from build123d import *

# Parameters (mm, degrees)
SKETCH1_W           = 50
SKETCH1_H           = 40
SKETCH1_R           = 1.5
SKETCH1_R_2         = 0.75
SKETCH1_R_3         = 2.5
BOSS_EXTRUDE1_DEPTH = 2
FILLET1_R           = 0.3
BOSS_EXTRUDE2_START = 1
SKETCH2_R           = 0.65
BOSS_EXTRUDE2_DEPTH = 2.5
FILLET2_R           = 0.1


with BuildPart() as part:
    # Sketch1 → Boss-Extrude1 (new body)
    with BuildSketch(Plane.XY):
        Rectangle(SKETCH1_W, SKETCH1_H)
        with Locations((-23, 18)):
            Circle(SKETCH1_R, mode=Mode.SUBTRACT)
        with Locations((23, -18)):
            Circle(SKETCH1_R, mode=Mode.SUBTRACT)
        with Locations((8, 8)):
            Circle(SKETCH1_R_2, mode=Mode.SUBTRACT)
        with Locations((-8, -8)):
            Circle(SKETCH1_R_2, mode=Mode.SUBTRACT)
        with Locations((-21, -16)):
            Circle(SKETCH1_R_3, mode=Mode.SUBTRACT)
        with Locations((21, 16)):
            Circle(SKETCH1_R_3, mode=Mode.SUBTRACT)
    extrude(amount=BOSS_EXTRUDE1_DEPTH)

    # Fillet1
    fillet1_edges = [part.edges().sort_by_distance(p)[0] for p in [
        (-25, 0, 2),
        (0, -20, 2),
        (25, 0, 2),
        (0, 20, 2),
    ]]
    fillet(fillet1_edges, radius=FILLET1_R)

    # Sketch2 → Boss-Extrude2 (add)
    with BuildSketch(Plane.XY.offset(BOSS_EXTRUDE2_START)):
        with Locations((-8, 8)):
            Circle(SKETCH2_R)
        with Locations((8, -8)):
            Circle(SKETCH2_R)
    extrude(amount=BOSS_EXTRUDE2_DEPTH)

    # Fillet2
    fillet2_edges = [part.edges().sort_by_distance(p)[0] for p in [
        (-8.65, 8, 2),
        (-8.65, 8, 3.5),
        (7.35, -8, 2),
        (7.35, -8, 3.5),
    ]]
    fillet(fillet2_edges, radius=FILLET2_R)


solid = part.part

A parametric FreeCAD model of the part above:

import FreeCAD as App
import Part
import Sketcher
Q = App.Units.Quantity


def edges_at(feature, points):
    """Names of the edges that pass closest to the given points."""
    edges = feature.Shape.Edges
    near = lambda p: min(range(len(edges)), key=lambda i: edges[i].distToShape(Part.Vertex(*p))[0])
    return sorted({f"Edge{near(p) + 1}" for p in points})


def add_polygon(sketch, points):
    """Adds a closed chain of lines whose ends are joined by coincident constraints."""
    first, n = sketch.GeometryCount, len(points)
    for a, b in zip(points, points[1:] + points[:1]):
        sketch.addGeometry(Part.LineSegment(App.Vector(*a, 0), App.Vector(*b, 0)), False)
    for i in range(n):
        sketch.addConstraint(Sketcher.Constraint("Coincident", first + i, 2, first + (i + 1) % n, 1))

doc = App.newDocument("Part")
body = doc.addObject("PartDesign::Body", "Body")

# Sketch on XY plane
sketch1 = doc.addObject("Sketcher::SketchObject", "Sketch")
body.addObject(sketch1)
sketch1.AttachmentSupport = (doc.XY_Plane, [""])
sketch1.MapMode = "FlatFace"
add_polygon(sketch1, [(-25, 20), (-25, -20), (25, -20), (25, 20)])  # lines 0-3
sketch1.addGeometry(Part.Circle(App.Vector(-21, -16, 0), App.Vector(0, 0, 1), 2.5), False)  # 4
sketch1.addGeometry(Part.Circle(App.Vector(-8, -8, 0), App.Vector(0, 0, 1), 0.75), False)  # 5
sketch1.addGeometry(Part.Circle(App.Vector(23, -18, 0), App.Vector(0, 0, 1), 1.5), False)  # 6
sketch1.addGeometry(Part.Circle(App.Vector(-23, 18, 0), App.Vector(0, 0, 1), 1.5), False)  # 7
sketch1.addGeometry(Part.Circle(App.Vector(8, 8, 0), App.Vector(0, 0, 1), 0.75), False)  # 8
sketch1.addGeometry(Part.Circle(App.Vector(21, 16, 0), App.Vector(0, 0, 1), 2.5), False)  # 9
sketch1.addConstraint([
    Sketcher.Constraint("Vertical", 0),
    Sketcher.Constraint("Horizontal", 1),
    Sketcher.Constraint("Vertical", 2),
    Sketcher.Constraint("Horizontal", 3),
    Sketcher.Constraint("Equal", 6, 7),
    Sketcher.Constraint("Equal", 5, 8),
    Sketcher.Constraint("Equal", 4, 9),
    Sketcher.Constraint("Symmetric", 6, 3, 7, 3, -1, 1),
    Sketcher.Constraint("Symmetric", 5, 3, 8, 3, -1, 1),
    Sketcher.Constraint("Symmetric", 4, 3, 9, 3, -1, 1),
    Sketcher.Constraint("Symmetric", 0, 2, 2, 2, -1, 1),
    Sketcher.Constraint("Diameter", 4, Q("5 mm")),
    Sketcher.Constraint("Diameter", 6, Q("3 mm")),
    Sketcher.Constraint("Diameter", 5, Q("1.5 mm")),
    Sketcher.Constraint("DistanceX", 1, 1, 1, 2, Q("50 mm")),
    Sketcher.Constraint("DistanceY", 0, 2, 0, 1, Q("40 mm")),
    Sketcher.Constraint("DistanceX", 4, 3, -1, 1, Q("21 mm")),
    Sketcher.Constraint("DistanceY", 4, 3, -1, 1, Q("16 mm")),
    Sketcher.Constraint("DistanceX", 5, 3, -1, 1, Q("8 mm")),
    Sketcher.Constraint("DistanceY", 5, 3, -1, 1, Q("8 mm")),
    Sketcher.Constraint("DistanceX", -1, 1, 6, 3, Q("23 mm")),
    Sketcher.Constraint("DistanceY", 6, 3, -1, 1, Q("18 mm")),
])
pad1 = doc.addObject("PartDesign::Pad", "Pad")
body.addObject(pad1)
pad1.Profile = sketch1
pad1.Length = 2
doc.recompute()

fillet = doc.addObject("PartDesign::Fillet", "Fillet")
body.addObject(fillet)
fillet.Base = (pad1, edges_at(pad1, [
    (-25, 0, 2),
    (0, -20, 2),
    (25, 0, 2),
    (0, 20, 2),
]))
fillet.Radius = 0.3

# Sketch on XY plane
sketch2 = doc.addObject("Sketcher::SketchObject", "Sketch001")
body.addObject(sketch2)
sketch2.AttachmentSupport = (doc.XY_Plane, [""])
sketch2.MapMode = "FlatFace"
sketch2.AttachmentOffset = App.Placement(App.Vector(0, 0, 1), App.Rotation())
sketch2.addGeometry([
    Part.Circle(App.Vector(-8, 8, 0), App.Vector(0, 0, 1), 0.65),
    Part.Circle(App.Vector(8, -8, 0), App.Vector(0, 0, 1), 0.65),
], False)
sketch2.addConstraint([
    Sketcher.Constraint("Equal", 0, 1),
    Sketcher.Constraint("Symmetric", 0, 3, 1, 3, -1, 1),
    Sketcher.Constraint("Diameter", 0, Q("1.3 mm")),
    Sketcher.Constraint("DistanceX", 0, 3, -1, 1, Q("8 mm")),
    Sketcher.Constraint("DistanceY", -1, 1, 0, 3, Q("8 mm")),
])
pad2 = doc.addObject("PartDesign::Pad", "Pad001")
body.addObject(pad2)
pad2.Profile = sketch2
pad2.Length = 2.5
doc.recompute()

fillet2 = doc.addObject("PartDesign::Fillet", "Fillet001")
body.addObject(fillet2)
fillet2.Base = (pad2, edges_at(pad2, [
    (-8.65, 8, 2),
    (-8.65, 8, 3.5),
    (7.35, -8, 2),
    (7.35, -8, 3.5),
]))
fillet2.Radius = 0.1

doc.recompute()
